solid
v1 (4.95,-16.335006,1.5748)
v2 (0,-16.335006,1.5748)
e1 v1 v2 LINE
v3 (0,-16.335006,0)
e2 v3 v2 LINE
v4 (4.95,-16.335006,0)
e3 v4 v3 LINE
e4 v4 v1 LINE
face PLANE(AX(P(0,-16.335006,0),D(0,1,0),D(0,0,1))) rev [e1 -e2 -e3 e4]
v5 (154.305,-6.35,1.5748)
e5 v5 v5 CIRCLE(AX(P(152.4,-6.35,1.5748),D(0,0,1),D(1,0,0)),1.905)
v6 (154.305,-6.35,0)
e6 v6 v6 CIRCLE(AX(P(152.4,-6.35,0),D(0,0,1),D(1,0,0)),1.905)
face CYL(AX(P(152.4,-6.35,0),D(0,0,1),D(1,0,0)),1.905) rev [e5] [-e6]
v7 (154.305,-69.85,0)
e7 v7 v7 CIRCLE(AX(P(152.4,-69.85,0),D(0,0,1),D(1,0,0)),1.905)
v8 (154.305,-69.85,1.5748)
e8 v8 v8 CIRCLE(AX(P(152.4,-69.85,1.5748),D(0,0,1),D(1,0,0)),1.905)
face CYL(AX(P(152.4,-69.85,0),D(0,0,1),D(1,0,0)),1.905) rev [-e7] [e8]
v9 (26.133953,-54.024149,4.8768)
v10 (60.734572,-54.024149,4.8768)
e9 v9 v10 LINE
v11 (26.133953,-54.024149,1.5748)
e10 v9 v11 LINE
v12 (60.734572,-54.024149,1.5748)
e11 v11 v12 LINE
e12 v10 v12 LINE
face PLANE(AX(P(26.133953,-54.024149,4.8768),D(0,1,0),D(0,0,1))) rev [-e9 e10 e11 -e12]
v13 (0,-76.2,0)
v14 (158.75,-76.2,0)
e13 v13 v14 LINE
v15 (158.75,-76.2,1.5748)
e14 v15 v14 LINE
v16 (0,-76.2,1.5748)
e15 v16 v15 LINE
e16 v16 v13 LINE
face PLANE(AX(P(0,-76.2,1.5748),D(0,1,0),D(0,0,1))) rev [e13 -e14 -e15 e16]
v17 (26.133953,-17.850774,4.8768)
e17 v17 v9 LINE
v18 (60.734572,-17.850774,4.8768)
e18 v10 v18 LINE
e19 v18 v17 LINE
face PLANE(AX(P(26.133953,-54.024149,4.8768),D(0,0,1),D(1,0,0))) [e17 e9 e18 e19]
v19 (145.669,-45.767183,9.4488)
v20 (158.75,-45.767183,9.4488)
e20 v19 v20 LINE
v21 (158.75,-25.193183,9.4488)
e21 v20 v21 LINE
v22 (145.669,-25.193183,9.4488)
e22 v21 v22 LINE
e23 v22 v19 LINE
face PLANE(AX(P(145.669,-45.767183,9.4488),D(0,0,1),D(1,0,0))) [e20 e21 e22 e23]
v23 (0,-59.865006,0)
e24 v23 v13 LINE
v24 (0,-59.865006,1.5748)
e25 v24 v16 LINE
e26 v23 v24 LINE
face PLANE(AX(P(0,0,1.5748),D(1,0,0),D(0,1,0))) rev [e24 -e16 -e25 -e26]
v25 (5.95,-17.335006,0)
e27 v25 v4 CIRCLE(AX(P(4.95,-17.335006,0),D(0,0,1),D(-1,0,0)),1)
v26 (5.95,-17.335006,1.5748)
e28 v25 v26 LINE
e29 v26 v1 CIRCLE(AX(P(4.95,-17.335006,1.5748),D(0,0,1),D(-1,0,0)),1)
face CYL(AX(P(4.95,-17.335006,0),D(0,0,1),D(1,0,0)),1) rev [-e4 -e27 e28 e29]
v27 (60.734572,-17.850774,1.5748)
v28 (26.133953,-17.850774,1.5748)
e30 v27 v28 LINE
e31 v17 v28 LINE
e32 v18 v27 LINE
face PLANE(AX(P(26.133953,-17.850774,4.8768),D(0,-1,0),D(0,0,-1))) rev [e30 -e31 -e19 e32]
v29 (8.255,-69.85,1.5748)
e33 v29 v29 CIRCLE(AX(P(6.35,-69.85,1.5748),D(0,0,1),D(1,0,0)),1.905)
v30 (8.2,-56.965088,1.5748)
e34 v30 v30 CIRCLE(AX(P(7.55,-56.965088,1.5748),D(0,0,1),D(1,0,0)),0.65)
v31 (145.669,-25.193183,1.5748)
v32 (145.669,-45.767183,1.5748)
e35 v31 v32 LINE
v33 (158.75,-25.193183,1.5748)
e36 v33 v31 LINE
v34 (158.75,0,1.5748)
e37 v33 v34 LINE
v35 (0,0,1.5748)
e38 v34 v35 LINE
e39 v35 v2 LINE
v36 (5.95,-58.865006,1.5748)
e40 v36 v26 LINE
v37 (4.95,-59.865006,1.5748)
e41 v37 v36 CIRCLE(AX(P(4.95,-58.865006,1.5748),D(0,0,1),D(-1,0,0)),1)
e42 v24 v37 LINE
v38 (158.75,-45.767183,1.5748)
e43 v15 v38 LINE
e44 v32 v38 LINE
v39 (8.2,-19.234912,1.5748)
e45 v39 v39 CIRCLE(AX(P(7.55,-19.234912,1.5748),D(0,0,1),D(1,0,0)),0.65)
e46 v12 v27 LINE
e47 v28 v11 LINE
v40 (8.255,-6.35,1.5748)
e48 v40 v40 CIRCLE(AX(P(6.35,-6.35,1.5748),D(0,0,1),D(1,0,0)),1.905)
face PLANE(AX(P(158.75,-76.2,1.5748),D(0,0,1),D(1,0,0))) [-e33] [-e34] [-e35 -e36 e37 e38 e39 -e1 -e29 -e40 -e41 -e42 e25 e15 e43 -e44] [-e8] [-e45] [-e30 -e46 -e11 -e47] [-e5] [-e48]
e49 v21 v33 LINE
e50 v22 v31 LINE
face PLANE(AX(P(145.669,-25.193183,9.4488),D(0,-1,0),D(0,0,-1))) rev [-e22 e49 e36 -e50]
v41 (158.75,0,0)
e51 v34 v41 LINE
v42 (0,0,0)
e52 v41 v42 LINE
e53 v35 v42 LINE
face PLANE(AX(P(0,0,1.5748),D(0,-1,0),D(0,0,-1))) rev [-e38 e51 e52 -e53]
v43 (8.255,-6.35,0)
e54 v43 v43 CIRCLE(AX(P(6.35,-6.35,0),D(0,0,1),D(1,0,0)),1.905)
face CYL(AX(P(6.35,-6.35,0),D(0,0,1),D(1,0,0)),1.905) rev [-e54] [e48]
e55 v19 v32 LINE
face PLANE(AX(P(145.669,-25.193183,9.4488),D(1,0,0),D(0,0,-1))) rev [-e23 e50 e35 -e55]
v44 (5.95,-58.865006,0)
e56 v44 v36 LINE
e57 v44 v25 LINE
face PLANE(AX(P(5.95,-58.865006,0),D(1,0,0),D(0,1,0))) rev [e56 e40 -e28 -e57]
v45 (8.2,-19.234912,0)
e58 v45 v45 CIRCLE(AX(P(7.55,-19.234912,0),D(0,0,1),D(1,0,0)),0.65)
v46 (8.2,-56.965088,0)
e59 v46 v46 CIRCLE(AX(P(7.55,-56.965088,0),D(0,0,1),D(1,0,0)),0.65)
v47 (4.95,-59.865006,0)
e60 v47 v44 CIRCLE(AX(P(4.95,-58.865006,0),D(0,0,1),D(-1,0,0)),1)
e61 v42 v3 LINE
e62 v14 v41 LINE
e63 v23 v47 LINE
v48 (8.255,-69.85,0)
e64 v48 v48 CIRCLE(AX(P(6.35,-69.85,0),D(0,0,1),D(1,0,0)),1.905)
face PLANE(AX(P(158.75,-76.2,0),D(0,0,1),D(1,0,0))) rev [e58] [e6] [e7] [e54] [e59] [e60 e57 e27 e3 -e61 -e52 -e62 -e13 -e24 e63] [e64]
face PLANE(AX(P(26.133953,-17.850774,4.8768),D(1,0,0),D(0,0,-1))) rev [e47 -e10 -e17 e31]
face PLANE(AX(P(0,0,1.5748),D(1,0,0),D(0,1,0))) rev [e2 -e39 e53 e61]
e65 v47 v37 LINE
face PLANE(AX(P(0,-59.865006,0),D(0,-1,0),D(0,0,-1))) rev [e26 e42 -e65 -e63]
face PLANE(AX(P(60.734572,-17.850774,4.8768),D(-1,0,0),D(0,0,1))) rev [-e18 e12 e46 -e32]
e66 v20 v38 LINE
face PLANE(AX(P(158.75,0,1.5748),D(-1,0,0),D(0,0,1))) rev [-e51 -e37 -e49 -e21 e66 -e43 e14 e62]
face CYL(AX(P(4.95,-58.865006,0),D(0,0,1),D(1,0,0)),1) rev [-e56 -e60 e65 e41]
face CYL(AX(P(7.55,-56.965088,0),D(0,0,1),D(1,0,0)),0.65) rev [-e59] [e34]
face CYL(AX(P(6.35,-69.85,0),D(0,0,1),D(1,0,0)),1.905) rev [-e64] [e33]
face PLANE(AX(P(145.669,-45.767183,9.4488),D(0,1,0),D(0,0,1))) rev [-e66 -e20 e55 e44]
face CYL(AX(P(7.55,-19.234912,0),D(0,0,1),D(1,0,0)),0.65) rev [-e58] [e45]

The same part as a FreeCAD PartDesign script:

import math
import FreeCAD as App
import Part
import Sketcher
from FreeCAD import Vector
Q = App.Units.Quantity

doc = App.newDocument("Part")
body = doc.addObject("PartDesign::Body", "Body")

# Sketch on XY plane
sketch1 = body.newObject("Sketcher::SketchObject", "Sketch")
sketch1.AttachmentSupport = (doc.getObject("XY_Plane"), [""])
sketch1.MapMode = "FlatFace"
sketch1.addGeometry(Part.LineSegment(Vector(0, 0, 0), Vector(0, -76, 0)), False)
sketch1.addGeometry(Part.LineSegment(Vector(0, -76, 0), Vector(159, -76, 0)), False)
sketch1.addGeometry(Part.LineSegment(Vector(159, -76, 0), Vector(159, 0, 0)), False)
sketch1.addGeometry(Part.LineSegment(Vector(159, 0, 0), Vector(0, 0, 0)), False)
sketch1.addConstraint(Sketcher.Constraint("Coincident", 0, 2, 1, 1))
sketch1.addConstraint(Sketcher.Constraint("Coincident", 1, 2, 2, 1))
sketch1.addConstraint(Sketcher.Constraint("Coincident", 2, 2, 3, 1))
sketch1.addConstraint(Sketcher.Constraint("Coincident", 3, 2, 0, 1))
sketch1.addConstraint(Sketcher.Constraint("Vertical", 0))
sketch1.addConstraint(Sketcher.Constraint("Horizontal", 1))
sketch1.addConstraint(Sketcher.Constraint("Vertical", 2))
sketch1.addConstraint(Sketcher.Constraint("Horizontal", 3))
sketch1.addConstraint(Sketcher.Constraint("Coincident", 3, 2, -1, 1))
sketch1.addConstraint(Sketcher.Constraint("DistanceY", 0, 2, 0, 1, Q("3 in")))
sketch1.addConstraint(Sketcher.Constraint("DistanceX", 1, 1, 1, 2, Q("6.25 in")))
pad1 = body.newObject("PartDesign::Pad", "Pad")
pad1.Profile = sketch1
pad1.Length = Q("0.062 in")

# Sketch on XY plane
sketch2 = body.newObject("Sketcher::SketchObject", "Sketch001")
sketch2.AttachmentSupport = (doc.getObject("XY_Plane"), [""])
sketch2.MapMode = "FlatFace"
sketch2.AttachmentOffset = App.Placement(Vector(0, 0, 0.062 * 25.4), App.Rotation())
sketch2.addGeometry(Part.Circle(Vector(152.4, -6.3, 0), Vector(0, 0, 1), 1.9), False)
sketch2.addGeometry(Part.Circle(Vector(6.3, -6.3, 0), Vector(0, 0, 1), 1.9), False)
sketch2.addGeometry(Part.Circle(Vector(152.4, -69.8, 0), Vector(0, 0, 1), 1.9), False)
sketch2.addGeometry(Part.Circle(Vector(6.3, -69.8, 0), Vector(0, 0, 1), 1.9), False)
sketch2.addConstraint(Sketcher.Constraint("Equal", 0, 1))
sketch2.addConstraint(Sketcher.Constraint("Equal", 1, 2))
sketch2.addConstraint(Sketcher.Constraint("Equal", 2, 3))
sketch2.addConstraint(Sketcher.Constraint("Horizontal", 0, 3, 1, 3))
sketch2.addConstraint(Sketcher.Constraint("Horizontal", 2, 3, 3, 3))
sketch2.addConstraint(Sketcher.Constraint("Vertical", 0, 3, 2, 3))
sketch2.addConstraint(Sketcher.Constraint("Vertical", 1, 3, 3, 3))
sketch2.addConstraint(Sketcher.Constraint("Diameter", 0, Q("0.15 in")))
sketch2.addConstraint(Sketcher.Constraint("DistanceX", -1, 1, 0, 3, Q("6 in")))
sketch2.addConstraint(Sketcher.Constraint("DistanceY", 2, 3, 0, 3, Q("2.5 in")))
sketch2.addConstraint(Sketcher.Constraint("DistanceY", 0, 3, -1, 1, Q("0.25 in")))
sketch2.addConstraint(Sketcher.Constraint("DistanceX", -1, 1, 1, 3, Q("0.25 in")))
pocket1 = body.newObject("PartDesign::Pocket", "Pocket")
pocket1.Profile = sketch2
pocket1.Length = Q("0.062 in")

# Sketch on XY plane
sketch3 = body.newObject("Sketcher::SketchObject", "Sketch002")
sketch3.AttachmentSupport = (doc.getObject("XY_Plane"), [""])
sketch3.MapMode = "FlatFace"
sketch3.AttachmentOffset = App.Placement(Vector(0, 0, 0.062 * 25.4), App.Rotation())
sketch3.addGeometry(Part.Circle(Vector(7.5, -19.2, 0), Vector(0, 0, 1), 0.7), False)
sketch3.addGeometry(Part.Circle(Vector(7.5, -57, 0), Vector(0, 0, 1), 0.7), False)
sketch3.addGeometry(Part.LineSegment(Vector(5, -16.3, 0), Vector(0, -16.3, 0)), False)
sketch3.addGeometry(Part.LineSegment(Vector(0, -16.3, 0), Vector(0, -59.9, 0)), False)
sketch3.addGeometry(Part.LineSegment(Vector(0, -59.9, 0), Vector(5, -59.9, 0)), False)
sketch3.addGeometry(Part.ArcOfCircle(Part.Circle(Vector(4.9, -58.9, 0), Vector(0, 0, 1), 1), math.radians(-90), math.radians(0)), False)
sketch3.addGeometry(Part.LineSegment(Vector(6, -58.9, 0), Vector(6, -17.3, 0)), False)
sketch3.addGeometry(Part.ArcOfCircle(Part.Circle(Vector(4.9, -17.3, 0), Vector(0, 0, 1), 1), math.radians(0), math.radians(90)), False)
sketch3.addConstraint(Sketcher.Constraint("Coincident", 2, 2, 3, 1))
sketch3.addConstraint(Sketcher.Constraint("Coincident", 3, 2, 4, 1))
sketch3.addConstraint(Sketcher.Constraint("Tangent", 4, 2, 5, 1))
sketch3.addConstraint(Sketcher.Constraint("Tangent", 5, 2, 6, 1))
sketch3.addConstraint(Sketcher.Constraint("Tangent", 6, 2, 7, 1))
sketch3.addConstraint(Sketcher.Constraint("Tangent", 7, 2, 2, 1))
sketch3.addConstraint(Sketcher.Constraint("Horizontal", 2))
sketch3.addConstraint(Sketcher.Constraint("Vertical", 3))
sketch3.addConstraint(Sketcher.Constraint("Horizontal", 4))
sketch3.addConstraint(Sketcher.Constraint("Vertical", 6))
sketch3.addConstraint(Sketcher.Constraint("Equal", 0, 1))
sketch3.addConstraint(Sketcher.Constraint("Equal", 5, 7))
sketch3.addConstraint(Sketcher.Constraint("PointOnObject", 2, 2, -2))
sketch3.addConstraint(Sketcher.Constraint("Vertical", 0, 3, 1, 3))
sketch3.addConstraint(Sketcher.Constraint("Diameter", 0, 1.3))
sketch3.addConstraint(Sketcher.Constraint("Radius", 5, 1.0))
sketch3.addConstraint(Sketcher.Constraint("DistanceX", 2, 2, 2, 1, 4.95))
sketch3.addConstraint(Sketcher.Constraint("DistanceY", 3, 2, 3, 1, 43.53))
sketch3.addConstraint(Sketcher.Constraint("DistanceY", 5, 3, 1, 3, Q("0.0747999 in")))
sketch3.addConstraint(Sketcher.Constraint("DistanceX", -1, 1, 0, 3, 7.55))
sketch3.addConstraint(Sketcher.Constraint("DistanceY", 1, 3, -1, 1, 56.965088))
sketch3.addConstraint(Sketcher.Constraint("DistanceY", 0, 3, -1, 1, 19.234912))
pocket2 = body.newObject("PartDesign::Pocket", "Pocket001")
pocket2.Profile = sketch3
pocket2.Length = Q("0.062 in")

# Sketch on XY plane
sketch4 = body.newObject("Sketcher::SketchObject", "Sketch003")
sketch4.AttachmentSupport = (doc.getObject("XY_Plane"), [""])
sketch4.MapMode = "FlatFace"
sketch4.AttachmentOffset = App.Placement(Vector(0, 0, 0.062 * 25.4), App.Rotation())
sketch4.addGeometry(Part.LineSegment(Vector(26, -18, 0), Vector(26, -54, 0)), False)
sketch4.addGeometry(Part.LineSegment(Vector(26, -54, 0), Vector(61, -54, 0)), False)
sketch4.addGeometry(Part.LineSegment(Vector(61, -54, 0), Vector(61, -18, 0)), False)
sketch4.addGeometry(Part.LineSegment(Vector(61, -18, 0), Vector(26, -18, 0)), False)
sketch4.addConstraint(Sketcher.Constraint("Coincident", 0, 2, 1, 1))
sketch4.addConstraint(Sketcher.Constraint("Coincident", 1, 2, 2, 1))
sketch4.addConstraint(Sketcher.Constraint("Coincident", 2, 2, 3, 1))
sketch4.addConstraint(Sketcher.Constraint("Coincident", 3, 2, 0, 1))
sketch4.addConstraint(Sketcher.Constraint("Vertical", 0))
sketch4.addConstraint(Sketcher.Constraint("Horizontal", 1))
sketch4.addConstraint(Sketcher.Constraint("Vertical", 2))
sketch4.addConstraint(Sketcher.Constraint("Horizontal", 3))
sketch4.addConstraint(Sketcher.Constraint("DistanceX", 1, 1, 1, 2, 34.600619))
sketch4.addConstraint(Sketcher.Constraint("DistanceY", 0, 2, 0, 1, 36.173375))
sketch4.addConstraint(Sketcher.Constraint("DistanceY", 0, 2, -1, 1, 54.024149))
sketch4.addConstraint(Sketcher.Constraint("DistanceX", -1, 1, 1, 2, 60.734572))
pad2 = body.newObject("PartDesign::Pad", "Pad001")
pad2.Profile = sketch4
pad2.Length = Q("0.13 in")

# Sketch on XY plane
sketch5 = body.newObject("Sketcher::SketchObject", "Sketch004")
sketch5.AttachmentSupport = (doc.getObject("XY_Plane"), [""])
sketch5.MapMode = "FlatFace"
sketch5.AttachmentOffset = App.Placement(Vector(0, 0, 0.062 * 25.4), App.Rotation())
sketch5.addGeometry(Part.LineSegment(Vector(146, -25, 0), Vector(146, -46, 0)), False)
sketch5.addGeometry(Part.LineSegment(Vector(146, -46, 0), Vector(159, -46, 0)), False)
sketch5.addGeometry(Part.LineSegment(Vector(159, -46, 0), Vector(159, -25, 0)), False)
sketch5.addGeometry(Part.LineSegment(Vector(159, -25, 0), Vector(146, -25, 0)), False)
sketch5.addConstraint(Sketcher.Constraint("Coincident", 0, 2, 1, 1))
sketch5.addConstraint(Sketcher.Constraint("Coincident", 1, 2, 2, 1))
sketch5.addConstraint(Sketcher.Constraint("Coincident", 2, 2, 3, 1))
sketch5.addConstraint(Sketcher.Constraint("Coincident", 3, 2, 0, 1))
sketch5.addConstraint(Sketcher.Constraint("Vertical", 0))
sketch5.addConstraint(Sketcher.Constraint("Horizontal", 1))
sketch5.addConstraint(Sketcher.Constraint("Vertical", 2))
sketch5.addConstraint(Sketcher.Constraint("Horizontal", 3))
sketch5.addConstraint(Sketcher.Constraint("DistanceY", 0, 2, 0, 1, Q("0.81 in")))
sketch5.addConstraint(Sketcher.Constraint("DistanceX", 1, 1, 1, 2, Q("0.515 in")))
sketch5.addConstraint(Sketcher.Constraint("DistanceX", -1, 1, 1, 2, Q("6.25 in")))
sketch5.addConstraint(Sketcher.Constraint("DistanceY", 0, 2, -1, 1, 45.767183))
pad3 = body.newObject("PartDesign::Pad", "Pad002")
pad3.Profile = sketch5
pad3.Length = Q("0.31 in")

doc.recompute()
